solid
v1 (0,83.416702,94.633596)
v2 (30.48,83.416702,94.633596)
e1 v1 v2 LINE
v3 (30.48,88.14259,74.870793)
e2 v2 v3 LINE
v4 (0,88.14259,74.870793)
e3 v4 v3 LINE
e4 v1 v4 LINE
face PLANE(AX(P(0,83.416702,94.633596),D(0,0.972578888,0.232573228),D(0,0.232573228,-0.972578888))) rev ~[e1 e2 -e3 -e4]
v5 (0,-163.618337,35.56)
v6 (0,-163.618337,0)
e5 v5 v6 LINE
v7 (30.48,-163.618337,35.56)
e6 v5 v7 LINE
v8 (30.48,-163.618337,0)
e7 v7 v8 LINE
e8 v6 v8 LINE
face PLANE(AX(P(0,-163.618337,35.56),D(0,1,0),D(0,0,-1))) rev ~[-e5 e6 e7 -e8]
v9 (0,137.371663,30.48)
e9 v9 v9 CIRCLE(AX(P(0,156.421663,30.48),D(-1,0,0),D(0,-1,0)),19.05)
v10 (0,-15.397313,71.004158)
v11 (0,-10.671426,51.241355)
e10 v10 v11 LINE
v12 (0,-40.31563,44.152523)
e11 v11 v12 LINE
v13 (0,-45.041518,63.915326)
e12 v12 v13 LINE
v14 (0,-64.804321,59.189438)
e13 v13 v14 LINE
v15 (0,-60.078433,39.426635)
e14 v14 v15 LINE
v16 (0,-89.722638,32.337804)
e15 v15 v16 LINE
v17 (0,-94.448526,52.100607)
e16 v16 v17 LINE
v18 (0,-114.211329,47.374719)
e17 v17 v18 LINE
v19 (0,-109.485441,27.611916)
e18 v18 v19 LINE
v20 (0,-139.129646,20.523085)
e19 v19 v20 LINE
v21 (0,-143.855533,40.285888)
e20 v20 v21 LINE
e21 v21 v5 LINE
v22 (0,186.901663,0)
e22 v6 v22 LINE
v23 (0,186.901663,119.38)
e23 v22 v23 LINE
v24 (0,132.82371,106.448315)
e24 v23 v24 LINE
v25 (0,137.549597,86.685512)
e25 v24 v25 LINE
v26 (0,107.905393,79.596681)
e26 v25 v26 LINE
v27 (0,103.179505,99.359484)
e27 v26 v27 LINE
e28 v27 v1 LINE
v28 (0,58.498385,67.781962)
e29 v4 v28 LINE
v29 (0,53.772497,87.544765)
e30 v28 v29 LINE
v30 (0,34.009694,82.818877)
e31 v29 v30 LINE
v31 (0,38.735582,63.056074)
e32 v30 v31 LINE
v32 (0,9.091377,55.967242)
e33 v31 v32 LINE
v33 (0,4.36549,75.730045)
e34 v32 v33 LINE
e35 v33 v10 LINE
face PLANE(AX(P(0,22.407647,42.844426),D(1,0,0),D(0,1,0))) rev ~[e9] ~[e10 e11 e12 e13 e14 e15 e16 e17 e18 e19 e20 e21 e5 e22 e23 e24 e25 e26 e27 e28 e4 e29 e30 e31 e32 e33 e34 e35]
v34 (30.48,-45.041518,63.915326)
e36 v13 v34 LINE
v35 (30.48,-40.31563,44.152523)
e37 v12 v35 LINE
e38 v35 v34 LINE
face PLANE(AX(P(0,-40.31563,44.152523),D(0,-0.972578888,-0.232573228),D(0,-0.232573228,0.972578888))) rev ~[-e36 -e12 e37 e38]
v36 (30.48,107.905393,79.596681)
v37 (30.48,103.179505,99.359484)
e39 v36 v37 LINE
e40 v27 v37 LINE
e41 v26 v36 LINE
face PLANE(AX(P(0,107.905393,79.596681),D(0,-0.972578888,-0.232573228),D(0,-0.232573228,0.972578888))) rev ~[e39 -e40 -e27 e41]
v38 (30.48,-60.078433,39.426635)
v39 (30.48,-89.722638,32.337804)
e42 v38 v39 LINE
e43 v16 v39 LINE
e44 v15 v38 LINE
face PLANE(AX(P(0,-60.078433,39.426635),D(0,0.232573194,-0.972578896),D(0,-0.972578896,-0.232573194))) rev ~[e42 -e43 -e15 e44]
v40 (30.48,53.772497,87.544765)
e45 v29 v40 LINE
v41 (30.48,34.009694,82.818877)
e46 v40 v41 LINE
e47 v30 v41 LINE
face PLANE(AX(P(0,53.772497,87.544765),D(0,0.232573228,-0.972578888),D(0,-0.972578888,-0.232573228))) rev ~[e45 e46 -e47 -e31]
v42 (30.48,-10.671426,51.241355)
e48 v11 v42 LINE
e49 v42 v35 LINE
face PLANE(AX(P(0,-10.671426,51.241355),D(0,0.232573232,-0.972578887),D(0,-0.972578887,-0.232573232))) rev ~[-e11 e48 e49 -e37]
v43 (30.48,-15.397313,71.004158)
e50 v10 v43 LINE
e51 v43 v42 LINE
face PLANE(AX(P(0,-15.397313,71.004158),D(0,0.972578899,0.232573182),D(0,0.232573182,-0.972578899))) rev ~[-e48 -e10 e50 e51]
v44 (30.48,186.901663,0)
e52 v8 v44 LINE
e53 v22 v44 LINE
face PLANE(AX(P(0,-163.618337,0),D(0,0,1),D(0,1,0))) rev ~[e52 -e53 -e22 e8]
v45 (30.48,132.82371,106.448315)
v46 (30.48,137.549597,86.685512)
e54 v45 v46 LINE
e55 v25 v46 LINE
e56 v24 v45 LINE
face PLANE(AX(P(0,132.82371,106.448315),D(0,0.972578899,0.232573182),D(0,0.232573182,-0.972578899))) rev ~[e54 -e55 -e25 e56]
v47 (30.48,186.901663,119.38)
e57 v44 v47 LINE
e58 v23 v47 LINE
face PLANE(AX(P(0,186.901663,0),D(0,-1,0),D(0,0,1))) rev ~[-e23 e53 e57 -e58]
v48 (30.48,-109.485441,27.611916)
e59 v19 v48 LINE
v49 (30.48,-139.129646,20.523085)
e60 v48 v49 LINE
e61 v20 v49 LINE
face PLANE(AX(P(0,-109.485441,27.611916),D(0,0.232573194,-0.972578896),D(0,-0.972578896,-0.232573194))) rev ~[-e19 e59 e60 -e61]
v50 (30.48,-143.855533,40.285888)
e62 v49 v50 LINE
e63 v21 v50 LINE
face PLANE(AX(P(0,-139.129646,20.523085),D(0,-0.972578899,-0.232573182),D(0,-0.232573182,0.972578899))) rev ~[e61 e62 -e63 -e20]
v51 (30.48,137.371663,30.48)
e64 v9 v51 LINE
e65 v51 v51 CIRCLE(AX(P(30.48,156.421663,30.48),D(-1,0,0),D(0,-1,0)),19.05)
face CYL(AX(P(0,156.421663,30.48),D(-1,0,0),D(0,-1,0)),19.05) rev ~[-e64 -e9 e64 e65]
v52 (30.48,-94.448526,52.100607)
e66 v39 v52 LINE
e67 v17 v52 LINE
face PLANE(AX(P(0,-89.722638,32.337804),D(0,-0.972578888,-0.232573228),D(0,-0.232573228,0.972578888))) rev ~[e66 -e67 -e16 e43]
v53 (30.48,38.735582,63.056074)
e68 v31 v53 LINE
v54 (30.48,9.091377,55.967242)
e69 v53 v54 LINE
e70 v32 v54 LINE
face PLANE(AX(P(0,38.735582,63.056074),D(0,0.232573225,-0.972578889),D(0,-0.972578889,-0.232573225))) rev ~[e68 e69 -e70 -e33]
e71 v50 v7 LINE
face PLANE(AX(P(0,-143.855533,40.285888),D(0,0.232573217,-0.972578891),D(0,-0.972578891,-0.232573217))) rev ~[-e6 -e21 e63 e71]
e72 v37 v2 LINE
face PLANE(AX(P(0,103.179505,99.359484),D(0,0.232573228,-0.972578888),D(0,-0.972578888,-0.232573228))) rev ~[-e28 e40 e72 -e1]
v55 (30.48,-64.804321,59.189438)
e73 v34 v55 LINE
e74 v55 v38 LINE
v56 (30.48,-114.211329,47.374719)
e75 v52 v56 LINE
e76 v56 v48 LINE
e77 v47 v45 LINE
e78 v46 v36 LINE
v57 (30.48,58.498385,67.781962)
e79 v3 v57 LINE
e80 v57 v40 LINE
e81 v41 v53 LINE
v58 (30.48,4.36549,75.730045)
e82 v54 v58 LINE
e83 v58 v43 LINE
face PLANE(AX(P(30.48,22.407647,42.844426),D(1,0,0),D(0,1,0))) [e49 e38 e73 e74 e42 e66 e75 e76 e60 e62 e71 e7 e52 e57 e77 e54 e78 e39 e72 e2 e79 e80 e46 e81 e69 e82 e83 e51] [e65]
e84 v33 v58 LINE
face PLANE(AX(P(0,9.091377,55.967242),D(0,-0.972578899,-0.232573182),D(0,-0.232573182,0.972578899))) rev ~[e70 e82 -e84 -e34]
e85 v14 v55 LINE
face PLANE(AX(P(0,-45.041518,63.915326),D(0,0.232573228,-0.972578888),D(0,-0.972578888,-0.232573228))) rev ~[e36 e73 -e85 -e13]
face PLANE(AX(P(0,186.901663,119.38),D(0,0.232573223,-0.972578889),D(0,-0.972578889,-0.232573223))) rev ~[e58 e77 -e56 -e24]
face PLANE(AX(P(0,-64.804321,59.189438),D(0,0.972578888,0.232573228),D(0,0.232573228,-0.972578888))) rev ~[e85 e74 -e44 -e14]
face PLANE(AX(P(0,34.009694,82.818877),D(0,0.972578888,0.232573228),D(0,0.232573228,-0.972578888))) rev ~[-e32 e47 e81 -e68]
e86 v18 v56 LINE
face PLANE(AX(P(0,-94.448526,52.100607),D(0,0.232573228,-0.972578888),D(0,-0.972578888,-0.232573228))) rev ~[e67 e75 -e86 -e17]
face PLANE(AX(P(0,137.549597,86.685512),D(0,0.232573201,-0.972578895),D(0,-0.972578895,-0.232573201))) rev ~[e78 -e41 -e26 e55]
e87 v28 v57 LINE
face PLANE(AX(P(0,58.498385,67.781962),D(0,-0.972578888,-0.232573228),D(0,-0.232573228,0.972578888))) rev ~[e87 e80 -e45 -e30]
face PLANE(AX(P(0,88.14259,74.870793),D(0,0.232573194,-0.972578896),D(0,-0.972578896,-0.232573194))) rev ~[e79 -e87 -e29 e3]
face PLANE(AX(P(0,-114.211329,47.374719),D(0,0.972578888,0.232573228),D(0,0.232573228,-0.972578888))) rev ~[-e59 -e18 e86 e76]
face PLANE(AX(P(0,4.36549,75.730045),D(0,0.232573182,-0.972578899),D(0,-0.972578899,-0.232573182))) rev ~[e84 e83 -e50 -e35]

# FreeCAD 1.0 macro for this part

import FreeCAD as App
import Part
import Sketcher
Q = App.Units.Quantity

doc = App.newDocument("Part")
body = doc.addObject("PartDesign::Body", "Body")

sketch1 = body.newObject("Sketcher::SketchObject", "Sketch")
sketch1.AttachmentSupport = (doc.getObject("YZ_Plane"), [""])
sketch1.MapMode = "FlatFace"
sketch1.addGeometry(Part.LineSegment(App.Vector(-164, 36, 0), App.Vector(-164, 0, 0)), False)
sketch1.addGeometry(Part.LineSegment(App.Vector(-164, 0, 0), App.Vector(187, 0, 0)), False)
sketch1.addGeometry(Part.LineSegment(App.Vector(187, 0, 0), App.Vector(187, 119, 0)), False)
sketch1.addGeometry(Part.LineSegment(App.Vector(187, 119, 0), App.Vector(133, 106, 0)), False)
sketch1.addGeometry(Part.LineSegment(App.Vector(133, 106, 0), App.Vector(138, 87, 0)), False)
sketch1.addGeometry(Part.LineSegment(App.Vector(138, 87, 0), App.Vector(108, 80, 0)), False)
sketch1.addGeometry(Part.LineSegment(App.Vector(108, 80, 0), App.Vector(103, 99, 0)), False)
sketch1.addGeometry(Part.LineSegment(App.Vector(103, 99, 0), App.Vector(83, 95, 0)), False)
sketch1.addGeometry(Part.LineSegment(App.Vector(83, 95, 0), App.Vector(88, 75, 0)), False)
sketch1.addGeometry(Part.LineSegment(App.Vector(88, 75, 0), App.Vector(58, 68, 0)), False)
sketch1.addGeometry(Part.LineSegment(App.Vector(58, 68, 0), App.Vector(54, 88, 0)), False)
sketch1.addGeometry(Part.LineSegment(App.Vector(54, 88, 0), App.Vector(34, 83, 0)), False)
sketch1.addGeometry(Part.LineSegment(App.Vector(34, 83, 0), App.Vector(39, 63, 0)), False)
sketch1.addGeometry(Part.LineSegment(App.Vector(39, 63, 0), App.Vector(9, 56, 0)), False)
sketch1.addGeometry(Part.LineSegment(App.Vector(9, 56, 0), App.Vector(4, 76, 0)), False)
sketch1.addGeometry(Part.LineSegment(App.Vector(4, 76, 0), App.Vector(-15, 71, 0)), False)
sketch1.addGeometry(Part.LineSegment(App.Vector(-15, 71, 0), App.Vector(-11, 51, 0)), False)
sketch1.addGeometry(Part.LineSegment(App.Vector(-11, 51, 0), App.Vector(-40, 44, 0)), False)
sketch1.addGeometry(Part.LineSegment(App.Vector(-40, 44, 0), App.Vector(-45, 64, 0)), False)
sketch1.addGeometry(Part.LineSegment(App.Vector(-45, 64, 0), App.Vector(-65, 59, 0)), False)
sketch1.addGeometry(Part.LineSegment(App.Vector(-65, 59, 0), App.Vector(-60, 39, 0)), False)
sketch1.addGeometry(Part.LineSegment(App.Vector(-60, 39, 0), App.Vector(-90, 32, 0)), False)
sketch1.addGeometry(Part.LineSegment(App.Vector(-90, 32, 0), App.Vector(-94, 52, 0)), False)
sketch1.addGeometry(Part.LineSegment(App.Vector(-94, 52, 0), App.Vector(-114, 47, 0)), False)
sketch1.addGeometry(Part.LineSegment(App.Vector(-114, 47, 0), App.Vector(-109, 28, 0)), False)
sketch1.addGeometry(Part.LineSegment(App.Vector(-109, 28, 0), App.Vector(-139, 21, 0)), False)
sketch1.addGeometry(Part.LineSegment(App.Vector(-139, 21, 0), App.Vector(-144, 40, 0)), False)
sketch1.addGeometry(Part.LineSegment(App.Vector(-144, 40, 0), App.Vector(-164, 36, 0)), False)
sketch1.addConstraint(Sketcher.Constraint("Coincident", 0, 2, 1, 1))
sketch1.addConstraint(Sketcher.Constraint("Coincident", 1, 2, 2, 1))
sketch1.addConstraint(Sketcher.Constraint("Coincident", 2, 2, 3, 1))
sketch1.addConstraint(Sketcher.Constraint("Coincident", 3, 2, 4, 1))
sketch1.addConstraint(Sketcher.Constraint("Coincident", 4, 2, 5, 1))
sketch1.addConstraint(Sketcher.Constraint("Coincident", 5, 2, 6, 1))
sketch1.addConstraint(Sketcher.Constraint("Coincident", 6, 2, 7, 1))
sketch1.addConstraint(Sketcher.Constraint("Coincident", 7, 2, 8, 1))
sketch1.addConstraint(Sketcher.Constraint("Coincident", 8, 2, 9, 1))
sketch1.addConstraint(Sketcher.Constraint("Coincident", 9, 2, 10, 1))
sketch1.addConstraint(Sketcher.Constraint("Coincident", 10, 2, 11, 1))
sketch1.addConstraint(Sketcher.Constraint("Coincident", 11, 2, 12, 1))
sketch1.addConstraint(Sketcher.Constraint("Coincident", 12, 2, 13, 1))
sketch1.addConstraint(Sketcher.Constraint("Coincident", 13, 2, 14, 1))
sketch1.addConstraint(Sketcher.Constraint("Coincident", 14, 2, 15, 1))
sketch1.addConstraint(Sketcher.Constraint("Coincident", 15, 2, 16, 1))
sketch1.addConstraint(Sketcher.Constraint("Coincident", 16, 2, 17, 1))
sketch1.addConstraint(Sketcher.Constraint("Coincident", 17, 2, 18, 1))
sketch1.addConstraint(Sketcher.Constraint("Coincident", 18, 2, 19, 1))
sketch1.addConstraint(Sketcher.Constraint("Coincident", 19, 2, 20, 1))
sketch1.addConstraint(Sketcher.Constraint("Coincident", 20, 2, 21, 1))
sketch1.addConstraint(Sketcher.Constraint("Coincident", 21, 2, 22, 1))
sketch1.addConstraint(Sketcher.Constraint("Coincident", 22, 2, 23, 1))
sketch1.addConstraint(Sketcher.Constraint("Coincident", 23, 2, 24, 1))
sketch1.addConstraint(Sketcher.Constraint("Coincident", 24, 2, 25, 1))
sketch1.addConstraint(Sketcher.Constraint("Coincident", 25, 2, 26, 1))
sketch1.addConstraint(Sketcher.Constraint("Coincident", 26, 2, 27, 1))
sketch1.addConstraint(Sketcher.Constraint("Coincident", 27, 2, 0, 1))
sketch1.addConstraint(Sketcher.Constraint("Vertical", 0))
sketch1.addConstraint(Sketcher.Constraint("Horizontal", 1))
sketch1.addConstraint(Sketcher.Constraint("Vertical", 2))
sketch1.addConstraint(Sketcher.Constraint("PointOnObject", 0, 2, -1))
sketch1.addConstraint(Sketcher.Constraint("Perpendicular", 3, 4))
sketch1.addConstraint(Sketcher.Constraint("Perpendicular", 4, 5))
sketch1.addConstraint(Sketcher.Constraint("Perpendicular", 5, 6))
sketch1.addConstraint(Sketcher.Constraint("Perpendicular", 6, 7))
sketch1.addConstraint(Sketcher.Constraint("Perpendicular", 7, 8))
sketch1.addConstraint(Sketcher.Constraint("Perpendicular", 8, 9))
sketch1.addConstraint(Sketcher.Constraint("Perpendicular", 9, 10))
sketch1.addConstraint(Sketcher.Constraint("Perpendicular", 10, 11))
sketch1.addConstraint(Sketcher.Constraint("Perpendicular", 11, 12))
sketch1.addConstraint(Sketcher.Constraint("Perpendicular", 12, 13))
sketch1.addConstraint(Sketcher.Constraint("Perpendicular", 13, 14))
sketch1.addConstraint(Sketcher.Constraint("Perpendicular", 14, 15))
sketch1.addConstraint(Sketcher.Constraint("Perpendicular", 15, 16))
sketch1.addConstraint(Sketcher.Constraint("Perpendicular", 16, 17))
sketch1.addConstraint(Sketcher.Constraint("Perpendicular", 17, 18))
sketch1.addConstraint(Sketcher.Constraint("Perpendicular", 18, 19))
sketch1.addConstraint(Sketcher.Constraint("Perpendicular", 19, 20))
sketch1.addConstraint(Sketcher.Constraint("Perpendicular", 20, 21))
sketch1.addConstraint(Sketcher.Constraint("Perpendicular", 21, 22))
sketch1.addConstraint(Sketcher.Constraint("Perpendicular", 22, 23))
sketch1.addConstraint(Sketcher.Constraint("Perpendicular", 23, 24))
sketch1.addConstraint(Sketcher.Constraint("Perpendicular", 24, 25))
sketch1.addConstraint(Sketcher.Constraint("Perpendicular", 25, 26))
sketch1.addConstraint(Sketcher.Constraint("Perpendicular", 26, 27))
sketch1.addConstraint(Sketcher.Constraint("Equal", 4, 6))
sketch1.addConstraint(Sketcher.Constraint("Equal", 6, 7))
sketch1.addConstraint(Sketcher.Constraint("Equal", 7, 8))
sketch1.addConstraint(Sketcher.Constraint("Equal", 5, 9))
sketch1.addConstraint(Sketcher.Constraint("Equal", 8, 10))
sketch1.addConstraint(Sketcher.Constraint("Equal", 10, 11))
sketch1.addConstraint(Sketcher.Constraint("Equal", 11, 12))
sketch1.addConstraint(Sketcher.Constraint("Equal", 9, 13))
sketch1.addConstraint(Sketcher.Constraint("Equal", 12, 14))
sketch1.addConstraint(Sketcher.Constraint("Equal", 14, 15))
sketch1.addConstraint(Sketcher.Constraint("Equal", 15, 16))
sketch1.addConstraint(Sketcher.Constraint("Equal", 13, 17))
sketch1.addConstraint(Sketcher.Constraint("Equal", 16, 18))
sketch1.addConstraint(Sketcher.Constraint("Equal", 18, 19))
sketch1.addConstraint(Sketcher.Constraint("Equal", 19, 20))
sketch1.addConstraint(Sketcher.Constraint("Equal", 17, 21))
sketch1.addConstraint(Sketcher.Constraint("Equal", 20, 22))
sketch1.addConstraint(Sketcher.Constraint("Equal", 22, 23))
sketch1.addConstraint(Sketcher.Constraint("Equal", 23, 24))
sketch1.addConstraint(Sketcher.Constraint("Equal", 21, 25))
sketch1.addConstraint(Sketcher.Constraint("Equal", 24, 26))
sketch1.addConstraint(Sketcher.Constraint("Equal", 26, 27))
sketch1.addConstraint(Sketcher.Constraint("DistanceX", 1, 1, 1, 2, Q("13.8 in")))
sketch1.addConstraint(Sketcher.Constraint("DistanceY", 0, 2, 0, 1, Q("1.4 in")))
sketch1.addConstraint(Sketcher.Constraint("DistanceY", 2, 1, 2, 2, Q("4.7 in")))
sketch1.addConstraint(Sketcher.Constraint("Distance", 4, Q("0.8 in")))
sketch1.addConstraint(Sketcher.Constraint("Distance", 5, Q("1.2 in")))
sketch1.addConstraint(Sketcher.Constraint("DistanceX", -1, 1, 7, 2, 83.416702))
pad1 = body.newObject("PartDesign::Pad", "Pad")
pad1.Profile = sketch1
pad1.Length = Q("1.2 in")

sketch2 = body.newObject("Sketcher::SketchObject", "Sketch001")
sketch2.AttachmentSupport = (doc.getObject("YZ_Plane"), [""])
sketch2.MapMode = "FlatFace"
sketch2.addGeometry(Part.Circle(App.Vector(156, 30, 0), App.Vector(0, 0, 1), 19), False)
sketch2.addConstraint(Sketcher.Constraint("Diameter", 0, Q("1.5 in")))
sketch2.addConstraint(Sketcher.Constraint("DistanceY", -1, 1, 0, 3, Q("1.2 in")))
sketch2.addConstraint(Sketcher.Constraint("DistanceX", -1, 1, 0, 3, 156.421663))
pocket1 = body.newObject("PartDesign::Pocket", "Pocket")
pocket1.Profile = sketch2
pocket1.Type = "ThroughAll"
pocket1.Reversed = True

doc.recompute()
